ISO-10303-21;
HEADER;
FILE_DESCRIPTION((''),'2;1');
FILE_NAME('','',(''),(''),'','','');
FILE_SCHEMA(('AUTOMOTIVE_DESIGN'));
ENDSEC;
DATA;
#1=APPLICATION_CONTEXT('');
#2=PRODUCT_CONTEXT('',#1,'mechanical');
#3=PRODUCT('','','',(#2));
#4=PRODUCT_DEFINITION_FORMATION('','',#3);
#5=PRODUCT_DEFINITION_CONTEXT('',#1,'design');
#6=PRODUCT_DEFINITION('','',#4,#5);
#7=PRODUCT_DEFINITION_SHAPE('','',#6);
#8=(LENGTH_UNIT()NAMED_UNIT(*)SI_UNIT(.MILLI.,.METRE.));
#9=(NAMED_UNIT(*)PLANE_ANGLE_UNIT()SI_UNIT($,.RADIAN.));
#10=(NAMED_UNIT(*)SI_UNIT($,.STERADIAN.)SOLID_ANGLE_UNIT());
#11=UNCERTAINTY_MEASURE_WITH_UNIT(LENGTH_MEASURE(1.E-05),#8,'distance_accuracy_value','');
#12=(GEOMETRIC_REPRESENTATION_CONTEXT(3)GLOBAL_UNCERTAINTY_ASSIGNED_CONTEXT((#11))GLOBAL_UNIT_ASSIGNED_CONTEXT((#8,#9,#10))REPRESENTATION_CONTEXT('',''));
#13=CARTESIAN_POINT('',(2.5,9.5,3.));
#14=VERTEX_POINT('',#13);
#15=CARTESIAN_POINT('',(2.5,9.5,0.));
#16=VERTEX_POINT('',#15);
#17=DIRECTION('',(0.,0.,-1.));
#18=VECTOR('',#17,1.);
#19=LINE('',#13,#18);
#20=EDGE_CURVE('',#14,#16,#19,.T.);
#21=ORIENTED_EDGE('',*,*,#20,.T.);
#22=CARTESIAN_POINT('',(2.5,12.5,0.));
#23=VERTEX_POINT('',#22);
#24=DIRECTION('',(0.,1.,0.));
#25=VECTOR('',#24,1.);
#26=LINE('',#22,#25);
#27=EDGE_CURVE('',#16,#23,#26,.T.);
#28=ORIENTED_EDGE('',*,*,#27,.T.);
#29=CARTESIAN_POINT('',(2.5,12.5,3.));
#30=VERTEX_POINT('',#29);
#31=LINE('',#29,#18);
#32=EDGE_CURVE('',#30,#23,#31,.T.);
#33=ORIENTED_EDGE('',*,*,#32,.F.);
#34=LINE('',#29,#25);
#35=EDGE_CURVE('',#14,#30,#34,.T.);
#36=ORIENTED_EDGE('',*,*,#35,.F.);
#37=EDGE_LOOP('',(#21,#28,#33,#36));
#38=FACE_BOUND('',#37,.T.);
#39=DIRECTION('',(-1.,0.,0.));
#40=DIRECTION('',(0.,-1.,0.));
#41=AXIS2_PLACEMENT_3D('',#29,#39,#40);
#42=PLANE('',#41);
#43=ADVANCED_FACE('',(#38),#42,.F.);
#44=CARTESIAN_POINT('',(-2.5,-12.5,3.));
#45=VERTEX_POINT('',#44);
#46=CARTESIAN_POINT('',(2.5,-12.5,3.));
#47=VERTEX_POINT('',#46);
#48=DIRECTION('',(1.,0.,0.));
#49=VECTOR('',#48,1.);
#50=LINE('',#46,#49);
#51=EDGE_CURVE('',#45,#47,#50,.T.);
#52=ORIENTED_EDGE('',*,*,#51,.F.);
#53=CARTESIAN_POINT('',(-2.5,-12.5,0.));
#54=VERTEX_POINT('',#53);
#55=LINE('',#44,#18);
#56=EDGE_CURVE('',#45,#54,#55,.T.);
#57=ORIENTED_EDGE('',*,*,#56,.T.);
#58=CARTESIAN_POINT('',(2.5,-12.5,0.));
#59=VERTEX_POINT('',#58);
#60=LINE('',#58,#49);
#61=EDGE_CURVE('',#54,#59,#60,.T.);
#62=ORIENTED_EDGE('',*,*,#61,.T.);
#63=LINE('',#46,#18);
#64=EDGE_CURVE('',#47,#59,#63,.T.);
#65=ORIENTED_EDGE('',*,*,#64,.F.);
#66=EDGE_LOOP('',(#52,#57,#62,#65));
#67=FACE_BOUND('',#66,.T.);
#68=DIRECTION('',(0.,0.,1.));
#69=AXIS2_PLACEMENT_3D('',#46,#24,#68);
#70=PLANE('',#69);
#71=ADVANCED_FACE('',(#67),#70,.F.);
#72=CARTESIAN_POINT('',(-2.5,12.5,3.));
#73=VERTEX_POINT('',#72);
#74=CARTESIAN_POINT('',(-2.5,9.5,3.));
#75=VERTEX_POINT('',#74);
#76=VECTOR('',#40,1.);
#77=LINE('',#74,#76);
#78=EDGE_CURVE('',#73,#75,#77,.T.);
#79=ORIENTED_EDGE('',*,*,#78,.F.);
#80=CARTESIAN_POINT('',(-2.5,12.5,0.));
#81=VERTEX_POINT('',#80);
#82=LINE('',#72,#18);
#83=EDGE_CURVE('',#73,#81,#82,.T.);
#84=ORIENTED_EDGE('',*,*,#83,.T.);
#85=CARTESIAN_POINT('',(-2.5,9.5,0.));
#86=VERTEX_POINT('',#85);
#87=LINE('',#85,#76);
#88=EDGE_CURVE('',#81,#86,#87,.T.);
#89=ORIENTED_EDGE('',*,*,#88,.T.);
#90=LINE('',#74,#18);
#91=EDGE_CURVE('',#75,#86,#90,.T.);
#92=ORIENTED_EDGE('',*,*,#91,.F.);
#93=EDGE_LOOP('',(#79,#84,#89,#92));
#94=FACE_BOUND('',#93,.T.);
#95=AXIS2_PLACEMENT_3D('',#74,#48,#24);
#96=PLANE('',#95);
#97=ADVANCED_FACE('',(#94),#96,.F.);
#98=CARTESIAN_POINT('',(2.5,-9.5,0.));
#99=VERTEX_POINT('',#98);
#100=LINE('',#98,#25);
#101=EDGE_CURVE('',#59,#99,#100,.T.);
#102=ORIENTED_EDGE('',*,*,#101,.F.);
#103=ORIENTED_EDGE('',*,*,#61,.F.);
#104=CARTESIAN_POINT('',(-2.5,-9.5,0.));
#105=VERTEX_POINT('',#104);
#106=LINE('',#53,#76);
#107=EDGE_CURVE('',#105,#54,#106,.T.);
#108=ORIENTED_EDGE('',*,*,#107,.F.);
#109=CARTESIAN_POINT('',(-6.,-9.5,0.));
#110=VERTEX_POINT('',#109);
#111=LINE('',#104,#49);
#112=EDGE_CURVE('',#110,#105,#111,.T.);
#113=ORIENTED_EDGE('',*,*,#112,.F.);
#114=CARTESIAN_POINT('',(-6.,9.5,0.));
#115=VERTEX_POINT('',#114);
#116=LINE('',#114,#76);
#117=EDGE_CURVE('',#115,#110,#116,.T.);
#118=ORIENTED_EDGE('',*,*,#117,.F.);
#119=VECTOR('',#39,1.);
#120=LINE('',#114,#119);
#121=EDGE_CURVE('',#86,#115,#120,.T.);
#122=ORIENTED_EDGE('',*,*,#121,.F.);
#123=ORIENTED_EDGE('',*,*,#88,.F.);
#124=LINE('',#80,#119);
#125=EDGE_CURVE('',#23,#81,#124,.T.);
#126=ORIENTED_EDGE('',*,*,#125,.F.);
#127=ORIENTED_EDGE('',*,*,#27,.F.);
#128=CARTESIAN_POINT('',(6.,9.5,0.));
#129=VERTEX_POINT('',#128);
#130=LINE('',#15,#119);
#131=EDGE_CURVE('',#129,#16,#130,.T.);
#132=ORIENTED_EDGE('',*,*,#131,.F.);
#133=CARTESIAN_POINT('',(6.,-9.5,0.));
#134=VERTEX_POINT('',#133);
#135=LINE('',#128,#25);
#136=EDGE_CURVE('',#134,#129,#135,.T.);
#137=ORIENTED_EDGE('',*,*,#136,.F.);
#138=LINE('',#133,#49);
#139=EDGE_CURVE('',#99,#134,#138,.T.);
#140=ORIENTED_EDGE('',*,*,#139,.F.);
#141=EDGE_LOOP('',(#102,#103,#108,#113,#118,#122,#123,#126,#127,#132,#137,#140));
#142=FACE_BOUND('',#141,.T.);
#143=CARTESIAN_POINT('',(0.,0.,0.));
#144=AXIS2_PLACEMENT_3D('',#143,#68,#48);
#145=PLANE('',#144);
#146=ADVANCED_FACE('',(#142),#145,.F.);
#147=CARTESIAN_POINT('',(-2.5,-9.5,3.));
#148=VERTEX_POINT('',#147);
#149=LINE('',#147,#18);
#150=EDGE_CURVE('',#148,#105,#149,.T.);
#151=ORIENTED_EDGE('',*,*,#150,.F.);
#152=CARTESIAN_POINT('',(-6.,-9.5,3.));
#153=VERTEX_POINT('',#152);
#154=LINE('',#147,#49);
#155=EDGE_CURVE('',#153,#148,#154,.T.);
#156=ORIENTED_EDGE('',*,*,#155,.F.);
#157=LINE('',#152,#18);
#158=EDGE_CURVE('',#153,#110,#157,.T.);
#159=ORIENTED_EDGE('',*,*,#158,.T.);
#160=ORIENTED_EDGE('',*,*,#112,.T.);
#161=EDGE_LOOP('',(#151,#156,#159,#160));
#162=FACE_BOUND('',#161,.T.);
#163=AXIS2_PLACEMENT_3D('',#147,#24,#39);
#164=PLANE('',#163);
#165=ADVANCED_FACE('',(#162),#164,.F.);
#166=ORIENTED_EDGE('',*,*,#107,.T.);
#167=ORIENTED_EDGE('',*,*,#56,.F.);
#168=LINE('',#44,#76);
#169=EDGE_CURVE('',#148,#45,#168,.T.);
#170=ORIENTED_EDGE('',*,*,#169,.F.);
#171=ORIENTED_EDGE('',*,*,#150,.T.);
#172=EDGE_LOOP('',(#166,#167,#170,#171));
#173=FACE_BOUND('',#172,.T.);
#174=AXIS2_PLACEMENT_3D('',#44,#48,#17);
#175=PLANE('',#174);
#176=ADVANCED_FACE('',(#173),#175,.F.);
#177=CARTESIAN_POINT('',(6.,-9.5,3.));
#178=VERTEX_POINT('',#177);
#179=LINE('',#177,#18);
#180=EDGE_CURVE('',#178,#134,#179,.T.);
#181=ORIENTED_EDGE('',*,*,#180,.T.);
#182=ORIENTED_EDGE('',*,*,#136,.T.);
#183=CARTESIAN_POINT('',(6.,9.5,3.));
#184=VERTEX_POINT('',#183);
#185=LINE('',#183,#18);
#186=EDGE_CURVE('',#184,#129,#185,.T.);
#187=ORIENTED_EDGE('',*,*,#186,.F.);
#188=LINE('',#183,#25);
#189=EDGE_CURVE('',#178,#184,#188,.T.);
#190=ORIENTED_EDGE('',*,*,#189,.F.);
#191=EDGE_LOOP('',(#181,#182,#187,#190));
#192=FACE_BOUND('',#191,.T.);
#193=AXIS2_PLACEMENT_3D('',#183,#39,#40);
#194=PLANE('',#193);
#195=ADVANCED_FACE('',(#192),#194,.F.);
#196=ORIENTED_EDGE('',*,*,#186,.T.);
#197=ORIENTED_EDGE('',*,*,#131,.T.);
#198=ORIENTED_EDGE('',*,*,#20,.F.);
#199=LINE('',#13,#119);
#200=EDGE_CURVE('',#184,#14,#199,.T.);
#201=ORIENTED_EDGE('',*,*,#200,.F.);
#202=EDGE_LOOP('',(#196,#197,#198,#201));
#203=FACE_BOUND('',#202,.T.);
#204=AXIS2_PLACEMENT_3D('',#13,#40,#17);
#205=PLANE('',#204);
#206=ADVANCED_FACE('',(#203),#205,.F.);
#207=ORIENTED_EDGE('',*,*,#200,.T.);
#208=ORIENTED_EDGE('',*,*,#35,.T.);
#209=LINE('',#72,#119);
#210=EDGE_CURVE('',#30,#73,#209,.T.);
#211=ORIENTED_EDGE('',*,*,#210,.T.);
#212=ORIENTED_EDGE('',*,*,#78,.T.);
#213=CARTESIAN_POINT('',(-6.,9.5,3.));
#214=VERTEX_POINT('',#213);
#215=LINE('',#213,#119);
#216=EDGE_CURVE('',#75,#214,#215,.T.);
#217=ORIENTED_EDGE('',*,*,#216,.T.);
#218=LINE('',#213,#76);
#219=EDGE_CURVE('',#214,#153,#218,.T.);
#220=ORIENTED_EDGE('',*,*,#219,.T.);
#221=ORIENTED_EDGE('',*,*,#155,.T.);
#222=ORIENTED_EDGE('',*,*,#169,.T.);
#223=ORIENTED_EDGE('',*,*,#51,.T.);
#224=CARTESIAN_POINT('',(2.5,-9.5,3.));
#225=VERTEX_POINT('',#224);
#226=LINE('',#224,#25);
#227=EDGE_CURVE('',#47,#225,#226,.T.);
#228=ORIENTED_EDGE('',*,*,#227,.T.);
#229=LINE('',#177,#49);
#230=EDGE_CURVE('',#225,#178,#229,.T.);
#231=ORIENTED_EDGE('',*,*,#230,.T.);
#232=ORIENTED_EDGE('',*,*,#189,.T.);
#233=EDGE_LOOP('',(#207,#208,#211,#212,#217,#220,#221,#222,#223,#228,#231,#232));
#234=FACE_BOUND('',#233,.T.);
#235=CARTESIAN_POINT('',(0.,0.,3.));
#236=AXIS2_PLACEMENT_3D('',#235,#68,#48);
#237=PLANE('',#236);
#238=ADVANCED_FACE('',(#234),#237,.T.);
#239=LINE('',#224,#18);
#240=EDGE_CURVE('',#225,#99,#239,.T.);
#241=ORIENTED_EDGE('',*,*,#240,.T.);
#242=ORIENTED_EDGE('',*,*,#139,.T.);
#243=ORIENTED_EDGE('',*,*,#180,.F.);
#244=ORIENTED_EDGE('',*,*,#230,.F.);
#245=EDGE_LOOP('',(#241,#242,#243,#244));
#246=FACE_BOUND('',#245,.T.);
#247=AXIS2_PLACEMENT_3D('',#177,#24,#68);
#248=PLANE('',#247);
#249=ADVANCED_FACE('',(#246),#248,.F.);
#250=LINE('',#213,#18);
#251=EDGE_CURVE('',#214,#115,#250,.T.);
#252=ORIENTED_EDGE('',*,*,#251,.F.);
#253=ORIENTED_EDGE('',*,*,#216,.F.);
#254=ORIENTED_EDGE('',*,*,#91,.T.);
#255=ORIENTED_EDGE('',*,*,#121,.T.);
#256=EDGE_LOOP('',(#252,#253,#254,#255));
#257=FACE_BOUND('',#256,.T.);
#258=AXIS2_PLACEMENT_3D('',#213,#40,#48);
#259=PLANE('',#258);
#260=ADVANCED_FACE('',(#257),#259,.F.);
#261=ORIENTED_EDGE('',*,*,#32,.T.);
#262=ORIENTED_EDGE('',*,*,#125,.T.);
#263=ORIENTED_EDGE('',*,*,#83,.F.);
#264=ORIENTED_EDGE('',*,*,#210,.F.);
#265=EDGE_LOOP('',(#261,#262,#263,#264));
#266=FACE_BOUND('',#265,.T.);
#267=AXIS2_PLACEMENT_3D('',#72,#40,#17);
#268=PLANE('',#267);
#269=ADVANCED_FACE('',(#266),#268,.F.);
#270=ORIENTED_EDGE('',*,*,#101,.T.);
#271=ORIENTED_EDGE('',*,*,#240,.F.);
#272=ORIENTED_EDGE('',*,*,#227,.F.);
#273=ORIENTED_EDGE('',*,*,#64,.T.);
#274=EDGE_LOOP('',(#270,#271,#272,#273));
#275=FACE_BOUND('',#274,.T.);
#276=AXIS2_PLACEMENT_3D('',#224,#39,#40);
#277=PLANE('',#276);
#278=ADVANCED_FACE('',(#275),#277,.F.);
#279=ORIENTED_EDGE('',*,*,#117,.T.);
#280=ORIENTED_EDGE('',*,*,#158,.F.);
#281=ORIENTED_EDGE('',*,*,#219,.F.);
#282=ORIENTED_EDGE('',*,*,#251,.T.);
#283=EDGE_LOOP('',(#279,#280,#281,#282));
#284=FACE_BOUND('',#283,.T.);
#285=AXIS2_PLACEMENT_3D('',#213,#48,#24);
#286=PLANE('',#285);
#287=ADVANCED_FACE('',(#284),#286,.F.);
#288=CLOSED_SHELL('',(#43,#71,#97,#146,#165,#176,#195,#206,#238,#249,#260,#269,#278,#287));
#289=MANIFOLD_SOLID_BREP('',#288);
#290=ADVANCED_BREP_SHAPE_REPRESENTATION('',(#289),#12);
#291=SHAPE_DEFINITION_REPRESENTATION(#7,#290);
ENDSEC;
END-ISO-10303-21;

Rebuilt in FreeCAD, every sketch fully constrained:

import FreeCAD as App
import Part
import Sketcher
from FreeCAD import Vector

doc = App.newDocument("Part")
body = doc.addObject("PartDesign::Body", "Body")

# Sketch on XY plane
sketch1 = body.newObject("Sketcher::SketchObject", "Sketch")
sketch1.AttachmentSupport = (doc.getObject("XY_Plane"), [""])
sketch1.MapMode = "FlatFace"
sketch1.addGeometry([
    Part.LineSegment(Vector(-2.5, 9.5, 0), Vector(-6, 9.5, 0)),  # 0
    Part.LineSegment(Vector(-6, 9.5, 0), Vector(-6, -9.5, 0)),  # 1
    Part.LineSegment(Vector(-6, -9.5, 0), Vector(-2.5, -9.5, 0)),  # 2
    Part.LineSegment(Vector(-2.5, -9.5, 0), Vector(-2.5, -12.5, 0)),  # 3
    Part.LineSegment(Vector(-2.5, -12.5, 0), Vector(2.5, -12.5, 0)),  # 4
    Part.LineSegment(Vector(2.5, -12.5, 0), Vector(2.5, -9.5, 0)),  # 5
    Part.LineSegment(Vector(2.5, -9.5, 0), Vector(6, -9.5, 0)),  # 6
    Part.LineSegment(Vector(6, -9.5, 0), Vector(6, 9.5, 0)),  # 7
    Part.LineSegment(Vector(6, 9.5, 0), Vector(2.5, 9.5, 0)),  # 8
    Part.LineSegment(Vector(2.5, 9.5, 0), Vector(2.5, 12.5, 0)),  # 9
    Part.LineSegment(Vector(2.5, 12.5, 0), Vector(-2.5, 12.5, 0)),  # 10
    Part.LineSegment(Vector(-2.5, 12.5, 0), Vector(-2.5, 9.5, 0)),  # 11
], False)
sketch1.addConstraint([
    Sketcher.Constraint("Coincident", 0, 2, 1, 1),
    Sketcher.Constraint("Coincident", 1, 2, 2, 1),
    Sketcher.Constraint("Coincident", 2, 2, 3, 1),
    Sketcher.Constraint("Coincident", 3, 2, 4, 1),
    Sketcher.Constraint("Coincident", 4, 2, 5, 1),
    Sketcher.Constraint("Coincident", 5, 2, 6, 1),
    Sketcher.Constraint("Coincident", 6, 2, 7, 1),
    Sketcher.Constraint("Coincident", 7, 2, 8, 1),
    Sketcher.Constraint("Coincident", 8, 2, 9, 1),
    Sketcher.Constraint("Coincident", 9, 2, 10, 1),
    Sketcher.Constraint("Coincident", 10, 2, 11, 1),
    Sketcher.Constraint("Coincident", 11, 2, 0, 1),
    Sketcher.Constraint("Horizontal", 0),
    Sketcher.Constraint("Vertical", 1),
    Sketcher.Constraint("Horizontal", 2),
    Sketcher.Constraint("Vertical", 3),
    Sketcher.Constraint("Horizontal", 4),
    Sketcher.Constraint("Vertical", 5),
    Sketcher.Constraint("Horizontal", 6),
    Sketcher.Constraint("Vertical", 7),
    Sketcher.Constraint("Horizontal", 8),
    Sketcher.Constraint("Vertical", 9),
    Sketcher.Constraint("Horizontal", 10),
    Sketcher.Constraint("Vertical", 11),
    Sketcher.Constraint("Symmetric", 0, 2, 6, 2, -1, 1),
    Sketcher.Constraint("Symmetric", 2, 2, 8, 2, -1, 1),
    Sketcher.Constraint("Symmetric", 4, 2, 10, 2, -1, 1),
    Sketcher.Constraint("Symmetric", 2, 2, 5, 2, -2),
    Sketcher.Constraint("DistanceX", 4, 1, 4, 2, 5.0),
    Sketcher.Constraint("DistanceY", 1, 2, 1, 1, 19.0),
    Sketcher.Constraint("DistanceY", 3, 2, 3, 1, 3.0),
    Sketcher.Constraint("DistanceX", 0, 2, 0, 1, 3.5),
])
pad1 = body.newObject("PartDesign::Pad", "Pad")
pad1.Profile = sketch1
pad1.Length = 3

doc.recompute()
